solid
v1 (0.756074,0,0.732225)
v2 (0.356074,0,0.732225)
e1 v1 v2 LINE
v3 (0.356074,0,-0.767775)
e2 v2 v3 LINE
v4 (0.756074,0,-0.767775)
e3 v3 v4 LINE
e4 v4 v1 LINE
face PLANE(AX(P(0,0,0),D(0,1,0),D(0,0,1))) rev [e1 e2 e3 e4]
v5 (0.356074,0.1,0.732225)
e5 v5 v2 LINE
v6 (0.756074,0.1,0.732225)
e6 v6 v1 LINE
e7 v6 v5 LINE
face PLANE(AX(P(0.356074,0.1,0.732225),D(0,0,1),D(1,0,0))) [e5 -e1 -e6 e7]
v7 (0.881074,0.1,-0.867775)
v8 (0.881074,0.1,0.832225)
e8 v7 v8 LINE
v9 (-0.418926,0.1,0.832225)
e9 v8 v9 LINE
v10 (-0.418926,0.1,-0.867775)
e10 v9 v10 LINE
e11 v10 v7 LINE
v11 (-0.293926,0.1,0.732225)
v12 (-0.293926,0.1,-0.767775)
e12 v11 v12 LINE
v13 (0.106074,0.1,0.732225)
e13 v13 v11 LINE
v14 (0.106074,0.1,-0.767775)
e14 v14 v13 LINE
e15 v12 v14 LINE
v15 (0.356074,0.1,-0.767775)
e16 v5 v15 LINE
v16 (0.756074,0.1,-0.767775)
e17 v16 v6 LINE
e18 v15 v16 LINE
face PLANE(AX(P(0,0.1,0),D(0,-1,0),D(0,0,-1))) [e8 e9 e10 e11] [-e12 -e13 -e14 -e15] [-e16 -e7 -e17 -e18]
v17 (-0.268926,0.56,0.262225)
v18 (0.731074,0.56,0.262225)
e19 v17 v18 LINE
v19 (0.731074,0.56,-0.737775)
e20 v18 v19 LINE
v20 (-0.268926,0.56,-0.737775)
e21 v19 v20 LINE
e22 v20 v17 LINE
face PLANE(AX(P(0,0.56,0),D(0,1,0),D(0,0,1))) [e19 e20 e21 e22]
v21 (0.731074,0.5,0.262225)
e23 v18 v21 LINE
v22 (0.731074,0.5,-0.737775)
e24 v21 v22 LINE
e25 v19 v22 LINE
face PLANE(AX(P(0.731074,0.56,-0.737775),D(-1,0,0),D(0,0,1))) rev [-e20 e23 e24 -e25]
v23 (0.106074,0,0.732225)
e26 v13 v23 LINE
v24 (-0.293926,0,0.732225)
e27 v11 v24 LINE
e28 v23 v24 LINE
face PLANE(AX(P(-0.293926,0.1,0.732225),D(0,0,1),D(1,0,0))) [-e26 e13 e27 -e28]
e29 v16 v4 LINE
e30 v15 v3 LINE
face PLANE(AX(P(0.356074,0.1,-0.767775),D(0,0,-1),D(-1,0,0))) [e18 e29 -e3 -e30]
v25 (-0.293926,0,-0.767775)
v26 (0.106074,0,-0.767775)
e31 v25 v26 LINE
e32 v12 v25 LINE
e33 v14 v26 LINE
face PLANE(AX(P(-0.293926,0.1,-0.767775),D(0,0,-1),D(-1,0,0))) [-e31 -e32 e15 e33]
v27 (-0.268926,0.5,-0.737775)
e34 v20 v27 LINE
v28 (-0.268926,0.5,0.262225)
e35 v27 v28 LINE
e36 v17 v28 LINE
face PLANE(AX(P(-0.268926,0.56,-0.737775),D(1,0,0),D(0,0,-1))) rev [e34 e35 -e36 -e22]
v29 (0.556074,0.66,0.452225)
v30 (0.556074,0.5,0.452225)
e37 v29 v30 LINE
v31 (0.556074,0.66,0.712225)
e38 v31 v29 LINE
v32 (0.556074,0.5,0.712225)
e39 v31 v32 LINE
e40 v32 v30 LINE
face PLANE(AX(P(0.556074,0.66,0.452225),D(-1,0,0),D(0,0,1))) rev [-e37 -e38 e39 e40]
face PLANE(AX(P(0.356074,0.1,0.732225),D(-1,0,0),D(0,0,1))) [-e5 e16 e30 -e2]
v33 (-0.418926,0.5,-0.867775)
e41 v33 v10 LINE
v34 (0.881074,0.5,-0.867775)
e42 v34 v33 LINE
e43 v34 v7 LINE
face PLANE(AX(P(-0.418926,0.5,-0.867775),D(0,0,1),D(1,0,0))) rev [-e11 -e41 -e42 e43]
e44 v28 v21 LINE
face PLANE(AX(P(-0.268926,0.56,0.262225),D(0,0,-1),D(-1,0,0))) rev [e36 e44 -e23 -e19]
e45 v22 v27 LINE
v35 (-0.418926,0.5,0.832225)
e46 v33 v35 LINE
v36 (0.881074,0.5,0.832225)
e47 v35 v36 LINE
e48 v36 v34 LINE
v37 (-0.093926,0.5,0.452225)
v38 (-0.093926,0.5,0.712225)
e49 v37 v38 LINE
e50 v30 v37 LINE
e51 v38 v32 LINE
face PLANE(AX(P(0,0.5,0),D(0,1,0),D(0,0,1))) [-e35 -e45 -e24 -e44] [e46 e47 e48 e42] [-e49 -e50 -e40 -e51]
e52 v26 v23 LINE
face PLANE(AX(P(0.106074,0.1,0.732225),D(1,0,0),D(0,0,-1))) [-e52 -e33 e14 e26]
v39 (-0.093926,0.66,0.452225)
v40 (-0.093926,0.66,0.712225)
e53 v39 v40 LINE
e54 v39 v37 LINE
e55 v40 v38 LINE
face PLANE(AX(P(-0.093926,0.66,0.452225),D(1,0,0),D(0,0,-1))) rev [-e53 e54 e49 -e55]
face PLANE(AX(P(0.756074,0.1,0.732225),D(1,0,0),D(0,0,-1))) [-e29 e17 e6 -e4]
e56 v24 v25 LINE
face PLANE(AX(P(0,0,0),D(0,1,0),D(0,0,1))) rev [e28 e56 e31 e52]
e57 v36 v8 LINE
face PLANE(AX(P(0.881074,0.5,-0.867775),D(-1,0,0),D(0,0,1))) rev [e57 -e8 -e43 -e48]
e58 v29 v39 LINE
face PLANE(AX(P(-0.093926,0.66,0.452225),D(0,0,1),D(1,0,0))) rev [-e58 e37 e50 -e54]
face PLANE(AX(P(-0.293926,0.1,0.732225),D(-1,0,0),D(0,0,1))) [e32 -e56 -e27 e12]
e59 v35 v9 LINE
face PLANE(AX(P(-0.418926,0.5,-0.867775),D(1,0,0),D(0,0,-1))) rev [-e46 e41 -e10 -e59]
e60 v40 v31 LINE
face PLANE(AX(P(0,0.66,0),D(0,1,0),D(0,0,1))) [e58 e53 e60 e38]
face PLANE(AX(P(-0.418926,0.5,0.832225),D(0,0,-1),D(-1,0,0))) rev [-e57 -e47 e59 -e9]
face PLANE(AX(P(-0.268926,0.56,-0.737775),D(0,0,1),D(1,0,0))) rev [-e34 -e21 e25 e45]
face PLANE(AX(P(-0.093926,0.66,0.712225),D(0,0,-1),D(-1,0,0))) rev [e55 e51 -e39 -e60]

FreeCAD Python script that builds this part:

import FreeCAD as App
import Part
import Sketcher

V = App.Vector


def add_polygon(sketch, points):
    """Adds a closed chain of lines whose ends are joined by coincident constraints."""
    first, n = sketch.GeometryCount, len(points)
    for a, b in zip(points, points[1:] + points[:1]):
        sketch.addGeometry(Part.LineSegment(App.Vector(*a, 0), App.Vector(*b, 0)), False)
    for i in range(n):
        sketch.addConstraint(Sketcher.Constraint("Coincident", first + i, 2, first + (i + 1) % n, 1))

doc = App.newDocument("Part")
body = doc.addObject("PartDesign::Body", "Body")

sketch1 = doc.addObject("Sketcher::SketchObject", "Sketch")
body.addObject(sketch1)
sketch1.AttachmentSupport = (doc.XZ_Plane, [""])
sketch1.MapMode = "FlatFace"
add_polygon(sketch1, [(-0.4, -0.9), (-0.4, 0.8), (0.9, 0.8), (0.9, -0.9)])
sketch1.addConstraint([
    Sketcher.Constraint("Vertical", 0),
    Sketcher.Constraint("Horizontal", 1),
    Sketcher.Constraint("Vertical", 2),
    Sketcher.Constraint("Horizontal", 3),
    Sketcher.Constraint("DistanceX", 1, 1, 1, 2, 1.3),
    Sketcher.Constraint("DistanceY", 0, 1, 0, 2, 1.7),
    Sketcher.Constraint("DistanceX", 0, 2, -1, 1, 0.418926),
    Sketcher.Constraint("DistanceY", -1, 1, 0, 2, 0.832225),
])
pad1 = doc.addObject("PartDesign::Pad", "Pad")
body.addObject(pad1)
pad1.Profile = sketch1
pad1.Length = 0.5
pad1.Reversed = True

sketch2 = doc.addObject("Sketcher::SketchObject", "Sketch001")
body.addObject(sketch2)
sketch2.AttachmentSupport = (doc.XZ_Plane, [""])
sketch2.MapMode = "FlatFace"
sketch2.AttachmentOffset = App.Placement(V(0, 0, -0.5), App.Rotation())
add_polygon(sketch2, [(-0.3, -0.7), (-0.3, 0.3), (0.7, 0.3), (0.7, -0.7)])
sketch2.addConstraint([
    Sketcher.Constraint("Vertical", 0),
    Sketcher.Constraint("Horizontal", 1),
    Sketcher.Constraint("Vertical", 2),
    Sketcher.Constraint("Horizontal", 3),
    Sketcher.Constraint("Equal", 3, 0),
    Sketcher.Constraint("DistanceX", 1, 1, 1, 2, 1.0),
    Sketcher.Constraint("DistanceX", 0, 2, -1, 1, 0.268926),
    Sketcher.Constraint("DistanceY", -1, 1, 0, 2, 0.262225),
])
pad2 = doc.addObject("PartDesign::Pad", "Pad001")
body.addObject(pad2)
pad2.Profile = sketch2
pad2.Length = 0.06
pad2.Reversed = True

sketch3 = doc.addObject("Sketcher::SketchObject", "Sketch002")
body.addObject(sketch3)
sketch3.AttachmentSupport = (doc.XZ_Plane, [""])
sketch3.MapMode = "FlatFace"
sketch3.AttachmentOffset = App.Placement(V(0, 0, -0.5), App.Rotation())
add_polygon(sketch3, [(-0.09, 0.45), (-0.09, 0.71), (0.56, 0.71), (0.56, 0.45)])
sketch3.addConstraint([
    Sketcher.Constraint("Vertical", 0),
    Sketcher.Constraint("Horizontal", 1),
    Sketcher.Constraint("Vertical", 2),
    Sketcher.Constraint("Horizontal", 3),
    Sketcher.Constraint("DistanceX", 1, 1, 1, 2, 0.65),
    Sketcher.Constraint("DistanceY", 0, 1, 0, 2, 0.26),
    Sketcher.Constraint("DistanceX", 0, 2, -1, 1, 0.093926),
    Sketcher.Constraint("DistanceY", -1, 1, 0, 2, 0.712225),
])
pad3 = doc.addObject("PartDesign::Pad", "Pad002")
body.addObject(pad3)
pad3.Profile = sketch3
pad3.Length = 0.16
pad3.Reversed = True

sketch4 = doc.addObject("Sketcher::SketchObject", "Sketch003")
body.addObject(sketch4)
sketch4.AttachmentSupport = (doc.XZ_Plane, [""])
sketch4.MapMode = "FlatFace"
add_polygon(sketch4, [(-0.9, 1.21), (-0.9, -1.34), (1.81, -1.34), (1.81, 1.21)])
add_polygon(sketch4, [(0.11, -0.77), (-0.29, -0.77), (-0.29, 0.73), (0.11, 0.73)])
add_polygon(sketch4, [(0.76, -0.77), (0.36, -0.77), (0.36, 0.73), (0.76, 0.73)])
sketch4.addConstraint([
    Sketcher.Constraint("Vertical", 0),
    Sketcher.Constraint("Horizontal", 1),
    Sketcher.Constraint("Vertical", 2),
    Sketcher.Constraint("Horizontal", 3),
    Sketcher.Constraint("Horizontal", 4),
    Sketcher.Constraint("Vertical", 5),
    Sketcher.Constraint("Horizontal", 6),
    Sketcher.Constraint("Vertical", 7),
    Sketcher.Constraint("Horizontal", 8),
    Sketcher.Constraint("Vertical", 9),
    Sketcher.Constraint("Horizontal", 10),
    Sketcher.Constraint("Vertical", 11),
    Sketcher.Constraint("Horizontal", 7, 2, 8, 2),
    Sketcher.Constraint("Horizontal", 6, 2, 9, 2),
    Sketcher.Constraint("Equal", 6, 8),
    Sketcher.Constraint("DistanceX", 4, 2, 4, 1, 0.4),
    Sketcher.Constraint("DistanceY", 5, 1, 5, 2, 1.5),
    Sketcher.Constraint("DistanceX", 7, 2, 8, 2, 0.25),
    Sketcher.Constraint("DistanceX", 0, 2, 4, 2, 0.604801),
    Sketcher.Constraint("DistanceY", 4, 2, 3, 2, 1.975502),
    Sketcher.Constraint("DistanceX", 1, 1, 1, 2, 2.706205),
    Sketcher.Constraint("DistanceY", 0, 2, 0, 1, 2.549362),
    Sketcher.Constraint("DistanceX", -1, 1, 1, 2, 1.807479),
    Sketcher.Constraint("DistanceY", 0, 2, -1, 1, 1.341636),
])
pocket1 = doc.addObject("PartDesign::Pocket", "Pocket")
body.addObject(pocket1)
pocket1.Profile = sketch4
pocket1.Length = 0.1

doc.recompute()
